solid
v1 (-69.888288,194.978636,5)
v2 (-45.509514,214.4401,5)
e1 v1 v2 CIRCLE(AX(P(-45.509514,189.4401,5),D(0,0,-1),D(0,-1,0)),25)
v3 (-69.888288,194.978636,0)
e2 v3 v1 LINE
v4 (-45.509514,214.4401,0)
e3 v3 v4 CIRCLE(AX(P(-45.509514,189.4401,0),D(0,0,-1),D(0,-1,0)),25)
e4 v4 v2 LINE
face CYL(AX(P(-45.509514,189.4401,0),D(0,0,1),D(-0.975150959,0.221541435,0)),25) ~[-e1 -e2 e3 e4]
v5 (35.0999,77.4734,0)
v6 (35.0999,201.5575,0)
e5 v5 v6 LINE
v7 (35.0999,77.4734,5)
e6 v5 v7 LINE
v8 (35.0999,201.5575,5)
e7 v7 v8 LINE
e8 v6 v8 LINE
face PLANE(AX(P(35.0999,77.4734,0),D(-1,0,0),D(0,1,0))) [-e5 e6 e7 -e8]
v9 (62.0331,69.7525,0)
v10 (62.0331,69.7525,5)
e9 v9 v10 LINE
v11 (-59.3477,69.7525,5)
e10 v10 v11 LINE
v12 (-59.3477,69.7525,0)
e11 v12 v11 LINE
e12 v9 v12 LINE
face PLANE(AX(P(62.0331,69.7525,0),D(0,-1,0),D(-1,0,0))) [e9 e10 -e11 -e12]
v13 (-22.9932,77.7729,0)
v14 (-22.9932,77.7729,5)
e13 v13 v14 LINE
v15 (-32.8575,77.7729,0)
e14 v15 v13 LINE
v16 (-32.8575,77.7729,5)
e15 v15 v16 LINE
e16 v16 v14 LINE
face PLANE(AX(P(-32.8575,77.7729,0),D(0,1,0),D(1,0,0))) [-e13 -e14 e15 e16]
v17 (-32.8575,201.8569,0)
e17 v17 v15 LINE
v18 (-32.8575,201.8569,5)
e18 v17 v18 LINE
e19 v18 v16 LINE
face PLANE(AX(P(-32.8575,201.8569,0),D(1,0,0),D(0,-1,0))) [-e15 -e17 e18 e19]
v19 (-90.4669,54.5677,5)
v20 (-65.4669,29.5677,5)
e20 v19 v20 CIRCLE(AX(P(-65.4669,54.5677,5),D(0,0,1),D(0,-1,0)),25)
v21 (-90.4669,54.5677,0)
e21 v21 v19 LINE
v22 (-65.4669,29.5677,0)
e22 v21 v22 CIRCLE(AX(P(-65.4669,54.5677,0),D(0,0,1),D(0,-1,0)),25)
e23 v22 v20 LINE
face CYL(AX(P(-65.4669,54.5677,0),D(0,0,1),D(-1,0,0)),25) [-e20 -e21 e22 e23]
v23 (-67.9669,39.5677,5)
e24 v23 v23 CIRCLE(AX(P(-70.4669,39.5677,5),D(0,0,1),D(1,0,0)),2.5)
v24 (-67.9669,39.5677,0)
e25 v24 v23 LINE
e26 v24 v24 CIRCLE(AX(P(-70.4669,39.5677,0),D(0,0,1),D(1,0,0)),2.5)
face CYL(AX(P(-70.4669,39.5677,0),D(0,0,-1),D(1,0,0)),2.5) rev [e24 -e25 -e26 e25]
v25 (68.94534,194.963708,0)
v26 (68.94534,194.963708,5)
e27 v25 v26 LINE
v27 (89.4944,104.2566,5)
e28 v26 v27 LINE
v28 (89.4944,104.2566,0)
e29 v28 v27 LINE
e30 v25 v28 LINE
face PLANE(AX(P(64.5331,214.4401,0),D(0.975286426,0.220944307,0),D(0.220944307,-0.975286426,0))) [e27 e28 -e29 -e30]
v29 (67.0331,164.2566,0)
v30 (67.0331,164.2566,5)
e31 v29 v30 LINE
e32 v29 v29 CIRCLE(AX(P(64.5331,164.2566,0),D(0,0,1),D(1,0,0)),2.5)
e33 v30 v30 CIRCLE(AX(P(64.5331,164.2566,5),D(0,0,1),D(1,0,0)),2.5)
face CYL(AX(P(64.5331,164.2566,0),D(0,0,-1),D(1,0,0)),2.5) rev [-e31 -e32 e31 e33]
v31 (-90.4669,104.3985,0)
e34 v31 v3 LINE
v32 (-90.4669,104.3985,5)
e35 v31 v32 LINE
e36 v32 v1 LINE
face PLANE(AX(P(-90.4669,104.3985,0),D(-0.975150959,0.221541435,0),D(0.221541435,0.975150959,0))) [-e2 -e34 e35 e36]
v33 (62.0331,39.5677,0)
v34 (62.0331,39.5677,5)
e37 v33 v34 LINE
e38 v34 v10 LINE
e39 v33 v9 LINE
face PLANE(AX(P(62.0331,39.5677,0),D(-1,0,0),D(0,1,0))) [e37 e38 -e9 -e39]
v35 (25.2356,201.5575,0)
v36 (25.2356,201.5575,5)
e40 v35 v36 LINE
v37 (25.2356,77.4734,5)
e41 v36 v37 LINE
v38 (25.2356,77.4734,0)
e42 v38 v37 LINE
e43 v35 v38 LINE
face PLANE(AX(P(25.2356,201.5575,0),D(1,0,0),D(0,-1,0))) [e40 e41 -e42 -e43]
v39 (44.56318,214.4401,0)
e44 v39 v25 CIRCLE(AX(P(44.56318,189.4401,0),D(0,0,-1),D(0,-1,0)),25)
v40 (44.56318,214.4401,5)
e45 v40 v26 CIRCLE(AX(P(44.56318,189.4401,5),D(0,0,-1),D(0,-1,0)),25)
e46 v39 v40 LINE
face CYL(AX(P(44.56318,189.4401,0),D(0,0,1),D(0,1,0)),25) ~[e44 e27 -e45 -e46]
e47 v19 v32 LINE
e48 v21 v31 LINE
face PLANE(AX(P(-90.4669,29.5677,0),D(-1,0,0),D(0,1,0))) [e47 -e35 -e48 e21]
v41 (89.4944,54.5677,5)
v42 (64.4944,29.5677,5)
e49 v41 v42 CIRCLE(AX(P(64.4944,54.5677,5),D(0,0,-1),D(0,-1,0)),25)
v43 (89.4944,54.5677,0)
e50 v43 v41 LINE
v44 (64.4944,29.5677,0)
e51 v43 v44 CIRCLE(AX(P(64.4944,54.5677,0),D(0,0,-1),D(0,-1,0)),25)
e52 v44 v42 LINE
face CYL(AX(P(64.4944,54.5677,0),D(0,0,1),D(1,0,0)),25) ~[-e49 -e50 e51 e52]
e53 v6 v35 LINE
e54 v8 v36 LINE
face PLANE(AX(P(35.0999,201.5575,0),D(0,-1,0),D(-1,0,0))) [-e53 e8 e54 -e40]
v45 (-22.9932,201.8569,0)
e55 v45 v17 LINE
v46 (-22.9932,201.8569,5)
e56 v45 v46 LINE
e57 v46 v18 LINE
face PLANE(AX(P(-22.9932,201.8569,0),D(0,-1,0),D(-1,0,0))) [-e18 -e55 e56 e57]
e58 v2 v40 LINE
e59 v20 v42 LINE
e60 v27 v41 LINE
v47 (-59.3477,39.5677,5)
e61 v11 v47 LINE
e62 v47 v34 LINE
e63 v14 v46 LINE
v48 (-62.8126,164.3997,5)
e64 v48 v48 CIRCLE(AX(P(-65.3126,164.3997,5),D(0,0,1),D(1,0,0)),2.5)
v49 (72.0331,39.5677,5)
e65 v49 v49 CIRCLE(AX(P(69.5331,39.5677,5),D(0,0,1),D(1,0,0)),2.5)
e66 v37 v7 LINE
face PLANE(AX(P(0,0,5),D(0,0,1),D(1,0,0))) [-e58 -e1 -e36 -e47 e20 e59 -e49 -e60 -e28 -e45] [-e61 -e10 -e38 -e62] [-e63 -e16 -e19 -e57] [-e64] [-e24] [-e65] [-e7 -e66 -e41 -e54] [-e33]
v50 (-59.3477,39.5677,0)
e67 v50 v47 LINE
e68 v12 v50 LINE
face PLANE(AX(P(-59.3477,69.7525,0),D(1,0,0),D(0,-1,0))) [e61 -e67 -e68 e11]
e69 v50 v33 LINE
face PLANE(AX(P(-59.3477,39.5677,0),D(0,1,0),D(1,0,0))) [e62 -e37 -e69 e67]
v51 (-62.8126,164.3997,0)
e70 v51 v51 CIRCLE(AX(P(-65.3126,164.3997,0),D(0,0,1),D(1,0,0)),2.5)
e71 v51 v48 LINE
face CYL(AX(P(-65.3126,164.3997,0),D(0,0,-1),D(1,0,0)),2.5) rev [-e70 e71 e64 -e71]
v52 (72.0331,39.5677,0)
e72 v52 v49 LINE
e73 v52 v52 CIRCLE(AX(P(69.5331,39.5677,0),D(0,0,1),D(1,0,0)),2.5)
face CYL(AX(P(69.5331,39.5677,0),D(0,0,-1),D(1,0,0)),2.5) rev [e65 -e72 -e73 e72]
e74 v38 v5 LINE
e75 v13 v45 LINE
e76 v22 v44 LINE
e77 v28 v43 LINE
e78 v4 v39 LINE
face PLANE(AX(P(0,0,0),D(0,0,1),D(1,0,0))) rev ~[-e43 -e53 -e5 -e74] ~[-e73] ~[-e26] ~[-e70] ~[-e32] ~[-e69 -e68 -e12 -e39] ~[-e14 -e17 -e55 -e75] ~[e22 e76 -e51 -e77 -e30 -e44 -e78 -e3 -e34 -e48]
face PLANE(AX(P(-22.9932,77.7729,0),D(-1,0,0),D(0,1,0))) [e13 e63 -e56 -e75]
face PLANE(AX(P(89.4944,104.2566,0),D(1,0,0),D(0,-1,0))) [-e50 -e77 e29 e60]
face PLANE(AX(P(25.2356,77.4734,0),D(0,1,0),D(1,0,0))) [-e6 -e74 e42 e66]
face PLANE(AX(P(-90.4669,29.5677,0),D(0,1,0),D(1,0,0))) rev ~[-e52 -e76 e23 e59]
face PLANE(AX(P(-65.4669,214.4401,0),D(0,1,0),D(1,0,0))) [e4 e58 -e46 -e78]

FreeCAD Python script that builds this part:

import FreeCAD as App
import Part
import Sketcher
from FreeCAD import Vector
Q = App.Units.Quantity


def edges_at(feature, points):
    """Names of the edges that pass closest to the given points."""
    edges = feature.Shape.Edges
    near = lambda p: min(range(len(edges)), key=lambda i: edges[i].distToShape(Part.Vertex(*p))[0])
    return sorted({f"Edge{near(p) + 1}" for p in points})


def add_polygon(sketch, points):
    """Adds a closed chain of lines whose ends are joined by coincident constraints."""
    first, n = sketch.GeometryCount, len(points)
    for a, b in zip(points, points[1:] + points[:1]):
        sketch.addGeometry(Part.LineSegment(App.Vector(*a, 0), App.Vector(*b, 0)), False)
    for i in range(n):
        sketch.addConstraint(Sketcher.Constraint("Coincident", first + i, 2, first + (i + 1) % n, 1))

doc = App.newDocument("Part")
params = doc.addObject("Spreadsheet::Sheet", "Params")
for row, (alias, value) in enumerate([
    ("sketch1_diameter", "5 mm"),
    ("sketch1_width", "130 mm"),
    ("pad1_length", "5 mm"),
    ("fillet_radius", "25 mm"),
], start=1):
    params.set(f"A{row}", alias)
    params.set(f"B{row}", "=" + value)
    params.setAlias(f"B{row}", alias)

body = doc.addObject("PartDesign::Body", "Body")

# Sketch on XY plane
sketch1 = doc.addObject("Sketcher::SketchObject", "Sketch")
body.addObject(sketch1)
sketch1.AttachmentSupport = (doc.XY_Plane, [""])
sketch1.MapMode = "FlatFace"
add_polygon(sketch1, [(-90.5, 104.4), (-90.5, 29.6), (89.5, 29.6), (89.5, 104.3), (64.5, 214.4), (-65.5, 214.4)])  # lines 0-5
sketch1.addGeometry(Part.Circle(Vector(-70.5, 39.6, 0), Vector(0, 0, 1), 2.5), False)  # 6
add_polygon(sketch1, [(62, 39.6), (-59.3, 39.6), (-59.3, 69.8), (62, 69.8)])  # lines 7-10
sketch1.addGeometry(Part.Circle(Vector(69.5, 39.6, 0), Vector(0, 0, 1), 2.5), False)  # 11
sketch1.addGeometry(Part.Circle(Vector(-65.3, 164.4, 0), Vector(0, 0, 1), 2.5), False)  # 12
add_polygon(sketch1, [(-23, 77.8), (-32.9, 77.8), (-32.9, 201.9), (-23, 201.9)])  # lines 13-16
add_polygon(sketch1, [(35.1, 77.5), (25.2, 77.5), (25.2, 201.6), (35.1, 201.6)])  # lines 17-20
sketch1.addGeometry(Part.Circle(Vector(64.5, 164.3, 0), Vector(0, 0, 1), 2.5), False)  # 21
sketch1.addConstraint([
    Sketcher.Constraint("Vertical", 0),
    Sketcher.Constraint("Horizontal", 1),
    Sketcher.Constraint("Vertical", 2),
    Sketcher.Constraint("Horizontal", 4),
    Sketcher.Constraint("Horizontal", 7),
    Sketcher.Constraint("Vertical", 8),
    Sketcher.Constraint("Horizontal", 9),
    Sketcher.Constraint("Vertical", 10),
    Sketcher.Constraint("Horizontal", 13),
    Sketcher.Constraint("Vertical", 14),
    Sketcher.Constraint("Horizontal", 15),
    Sketcher.Constraint("Vertical", 16),
    Sketcher.Constraint("Horizontal", 17),
    Sketcher.Constraint("Vertical", 18),
    Sketcher.Constraint("Horizontal", 19),
    Sketcher.Constraint("Vertical", 20),
    Sketcher.Constraint("Equal", 6, 11),
    Sketcher.Constraint("Equal", 11, 12),
    Sketcher.Constraint("Equal", 12, 21),
    Sketcher.Constraint("Horizontal", 6, 3, 11, 3),
    Sketcher.Constraint("Horizontal", 11, 3, 7, 2),
    Sketcher.Constraint("Vertical", 21, 3, 3, 2),
    Sketcher.Constraint("Equal", 15, 17),
    Sketcher.Constraint("Equal", 16, 18),
    Sketcher.Constraint("Diameter", 6, Q("5 mm")),
    Sketcher.Constraint("DistanceX", 4, 2, 4, 1, Q("130 mm")),
    Sketcher.Constraint("Angle", 5, Q("-102.7996 deg")),
    Sketcher.Constraint("DistanceX", 6, 3, 11, 3, Q("140 mm")),
    Sketcher.Constraint("DistanceX", 21, 3, 11, 3, Q("5 mm")),
    Sketcher.Constraint("DistanceX", 0, 2, 6, 3, Q("20 mm")),
    Sketcher.Constraint("DistanceY", 0, 2, 6, 3, Q("10 mm")),
    Sketcher.Constraint("DistanceY", 2, 2, 21, 3, Q("60 mm")),
    Sketcher.Constraint("DistanceX", -1, 1, 19, 2, Q("35.1 mm")),
    Sketcher.Constraint("DistanceX", 9, 2, 11, 3, Q("7.5 mm")),
    Sketcher.Constraint("DistanceY", 2, 1, 2, 2, Q("74.689 mm")),
    Sketcher.Constraint("DistanceY", 14, 1, 14, 2, Q("124.084 mm")),
    Sketcher.Constraint("DistanceY", -1, 1, 3, 2, Q("214.44 mm")),
    Sketcher.Constraint("DistanceX", 1, 1, 1, 2, Q("179.9613 mm")),
    Sketcher.Constraint("DistanceX", 7, 2, 7, 1, Q("121.3808 mm")),
    Sketcher.Constraint("DistanceX", 13, 2, 13, 1, Q("9.8643 mm")),
    Sketcher.Constraint("DistanceY", 0, 2, 0, 1, Q("74.8308 mm")),
    Sketcher.Constraint("DistanceY", 8, 1, 8, 2, Q("30.1848 mm")),
    Sketcher.Constraint("DistanceX", 6, 3, -1, 1, Q("70.467 mm")),
    Sketcher.Constraint("DistanceY", -1, 1, 13, 2, Q("77.773 mm")),
    Sketcher.Constraint("DistanceY", 6, 3, 12, 3, Q("124.832 mm")),
    Sketcher.Constraint("DistanceX", 12, 3, 1, 2, Q("154.807 mm")),
    Sketcher.Constraint("DistanceX", 12, 3, 14, 2, Q("32.455 mm")),
    Sketcher.Constraint("DistanceY", 9, 2, 17, 2, Q("7.721 mm")),
])
sketch1.setExpression("Constraints[42]", "Params.sketch1_diameter")
sketch1.setExpression("Constraints[43]", "Params.sketch1_width")
pad1 = doc.addObject("PartDesign::Pad", "Pad")
body.addObject(pad1)
pad1.Profile = sketch1
pad1.setExpression("Length", "Params.pad1_length")
doc.recompute()

fillet = doc.addObject("PartDesign::Fillet", "Fillet")
body.addObject(fillet)
fillet.Base = (pad1, edges_at(pad1, [
    (64.533, 214.44, 2.5),
    (-65.467, 214.44, 2.5),
    (-90.467, 29.568, 2.5),
    (89.494, 29.568, 2.5),
]))
fillet.setExpression("Radius", "Params.fillet_radius")

doc.recompute()
